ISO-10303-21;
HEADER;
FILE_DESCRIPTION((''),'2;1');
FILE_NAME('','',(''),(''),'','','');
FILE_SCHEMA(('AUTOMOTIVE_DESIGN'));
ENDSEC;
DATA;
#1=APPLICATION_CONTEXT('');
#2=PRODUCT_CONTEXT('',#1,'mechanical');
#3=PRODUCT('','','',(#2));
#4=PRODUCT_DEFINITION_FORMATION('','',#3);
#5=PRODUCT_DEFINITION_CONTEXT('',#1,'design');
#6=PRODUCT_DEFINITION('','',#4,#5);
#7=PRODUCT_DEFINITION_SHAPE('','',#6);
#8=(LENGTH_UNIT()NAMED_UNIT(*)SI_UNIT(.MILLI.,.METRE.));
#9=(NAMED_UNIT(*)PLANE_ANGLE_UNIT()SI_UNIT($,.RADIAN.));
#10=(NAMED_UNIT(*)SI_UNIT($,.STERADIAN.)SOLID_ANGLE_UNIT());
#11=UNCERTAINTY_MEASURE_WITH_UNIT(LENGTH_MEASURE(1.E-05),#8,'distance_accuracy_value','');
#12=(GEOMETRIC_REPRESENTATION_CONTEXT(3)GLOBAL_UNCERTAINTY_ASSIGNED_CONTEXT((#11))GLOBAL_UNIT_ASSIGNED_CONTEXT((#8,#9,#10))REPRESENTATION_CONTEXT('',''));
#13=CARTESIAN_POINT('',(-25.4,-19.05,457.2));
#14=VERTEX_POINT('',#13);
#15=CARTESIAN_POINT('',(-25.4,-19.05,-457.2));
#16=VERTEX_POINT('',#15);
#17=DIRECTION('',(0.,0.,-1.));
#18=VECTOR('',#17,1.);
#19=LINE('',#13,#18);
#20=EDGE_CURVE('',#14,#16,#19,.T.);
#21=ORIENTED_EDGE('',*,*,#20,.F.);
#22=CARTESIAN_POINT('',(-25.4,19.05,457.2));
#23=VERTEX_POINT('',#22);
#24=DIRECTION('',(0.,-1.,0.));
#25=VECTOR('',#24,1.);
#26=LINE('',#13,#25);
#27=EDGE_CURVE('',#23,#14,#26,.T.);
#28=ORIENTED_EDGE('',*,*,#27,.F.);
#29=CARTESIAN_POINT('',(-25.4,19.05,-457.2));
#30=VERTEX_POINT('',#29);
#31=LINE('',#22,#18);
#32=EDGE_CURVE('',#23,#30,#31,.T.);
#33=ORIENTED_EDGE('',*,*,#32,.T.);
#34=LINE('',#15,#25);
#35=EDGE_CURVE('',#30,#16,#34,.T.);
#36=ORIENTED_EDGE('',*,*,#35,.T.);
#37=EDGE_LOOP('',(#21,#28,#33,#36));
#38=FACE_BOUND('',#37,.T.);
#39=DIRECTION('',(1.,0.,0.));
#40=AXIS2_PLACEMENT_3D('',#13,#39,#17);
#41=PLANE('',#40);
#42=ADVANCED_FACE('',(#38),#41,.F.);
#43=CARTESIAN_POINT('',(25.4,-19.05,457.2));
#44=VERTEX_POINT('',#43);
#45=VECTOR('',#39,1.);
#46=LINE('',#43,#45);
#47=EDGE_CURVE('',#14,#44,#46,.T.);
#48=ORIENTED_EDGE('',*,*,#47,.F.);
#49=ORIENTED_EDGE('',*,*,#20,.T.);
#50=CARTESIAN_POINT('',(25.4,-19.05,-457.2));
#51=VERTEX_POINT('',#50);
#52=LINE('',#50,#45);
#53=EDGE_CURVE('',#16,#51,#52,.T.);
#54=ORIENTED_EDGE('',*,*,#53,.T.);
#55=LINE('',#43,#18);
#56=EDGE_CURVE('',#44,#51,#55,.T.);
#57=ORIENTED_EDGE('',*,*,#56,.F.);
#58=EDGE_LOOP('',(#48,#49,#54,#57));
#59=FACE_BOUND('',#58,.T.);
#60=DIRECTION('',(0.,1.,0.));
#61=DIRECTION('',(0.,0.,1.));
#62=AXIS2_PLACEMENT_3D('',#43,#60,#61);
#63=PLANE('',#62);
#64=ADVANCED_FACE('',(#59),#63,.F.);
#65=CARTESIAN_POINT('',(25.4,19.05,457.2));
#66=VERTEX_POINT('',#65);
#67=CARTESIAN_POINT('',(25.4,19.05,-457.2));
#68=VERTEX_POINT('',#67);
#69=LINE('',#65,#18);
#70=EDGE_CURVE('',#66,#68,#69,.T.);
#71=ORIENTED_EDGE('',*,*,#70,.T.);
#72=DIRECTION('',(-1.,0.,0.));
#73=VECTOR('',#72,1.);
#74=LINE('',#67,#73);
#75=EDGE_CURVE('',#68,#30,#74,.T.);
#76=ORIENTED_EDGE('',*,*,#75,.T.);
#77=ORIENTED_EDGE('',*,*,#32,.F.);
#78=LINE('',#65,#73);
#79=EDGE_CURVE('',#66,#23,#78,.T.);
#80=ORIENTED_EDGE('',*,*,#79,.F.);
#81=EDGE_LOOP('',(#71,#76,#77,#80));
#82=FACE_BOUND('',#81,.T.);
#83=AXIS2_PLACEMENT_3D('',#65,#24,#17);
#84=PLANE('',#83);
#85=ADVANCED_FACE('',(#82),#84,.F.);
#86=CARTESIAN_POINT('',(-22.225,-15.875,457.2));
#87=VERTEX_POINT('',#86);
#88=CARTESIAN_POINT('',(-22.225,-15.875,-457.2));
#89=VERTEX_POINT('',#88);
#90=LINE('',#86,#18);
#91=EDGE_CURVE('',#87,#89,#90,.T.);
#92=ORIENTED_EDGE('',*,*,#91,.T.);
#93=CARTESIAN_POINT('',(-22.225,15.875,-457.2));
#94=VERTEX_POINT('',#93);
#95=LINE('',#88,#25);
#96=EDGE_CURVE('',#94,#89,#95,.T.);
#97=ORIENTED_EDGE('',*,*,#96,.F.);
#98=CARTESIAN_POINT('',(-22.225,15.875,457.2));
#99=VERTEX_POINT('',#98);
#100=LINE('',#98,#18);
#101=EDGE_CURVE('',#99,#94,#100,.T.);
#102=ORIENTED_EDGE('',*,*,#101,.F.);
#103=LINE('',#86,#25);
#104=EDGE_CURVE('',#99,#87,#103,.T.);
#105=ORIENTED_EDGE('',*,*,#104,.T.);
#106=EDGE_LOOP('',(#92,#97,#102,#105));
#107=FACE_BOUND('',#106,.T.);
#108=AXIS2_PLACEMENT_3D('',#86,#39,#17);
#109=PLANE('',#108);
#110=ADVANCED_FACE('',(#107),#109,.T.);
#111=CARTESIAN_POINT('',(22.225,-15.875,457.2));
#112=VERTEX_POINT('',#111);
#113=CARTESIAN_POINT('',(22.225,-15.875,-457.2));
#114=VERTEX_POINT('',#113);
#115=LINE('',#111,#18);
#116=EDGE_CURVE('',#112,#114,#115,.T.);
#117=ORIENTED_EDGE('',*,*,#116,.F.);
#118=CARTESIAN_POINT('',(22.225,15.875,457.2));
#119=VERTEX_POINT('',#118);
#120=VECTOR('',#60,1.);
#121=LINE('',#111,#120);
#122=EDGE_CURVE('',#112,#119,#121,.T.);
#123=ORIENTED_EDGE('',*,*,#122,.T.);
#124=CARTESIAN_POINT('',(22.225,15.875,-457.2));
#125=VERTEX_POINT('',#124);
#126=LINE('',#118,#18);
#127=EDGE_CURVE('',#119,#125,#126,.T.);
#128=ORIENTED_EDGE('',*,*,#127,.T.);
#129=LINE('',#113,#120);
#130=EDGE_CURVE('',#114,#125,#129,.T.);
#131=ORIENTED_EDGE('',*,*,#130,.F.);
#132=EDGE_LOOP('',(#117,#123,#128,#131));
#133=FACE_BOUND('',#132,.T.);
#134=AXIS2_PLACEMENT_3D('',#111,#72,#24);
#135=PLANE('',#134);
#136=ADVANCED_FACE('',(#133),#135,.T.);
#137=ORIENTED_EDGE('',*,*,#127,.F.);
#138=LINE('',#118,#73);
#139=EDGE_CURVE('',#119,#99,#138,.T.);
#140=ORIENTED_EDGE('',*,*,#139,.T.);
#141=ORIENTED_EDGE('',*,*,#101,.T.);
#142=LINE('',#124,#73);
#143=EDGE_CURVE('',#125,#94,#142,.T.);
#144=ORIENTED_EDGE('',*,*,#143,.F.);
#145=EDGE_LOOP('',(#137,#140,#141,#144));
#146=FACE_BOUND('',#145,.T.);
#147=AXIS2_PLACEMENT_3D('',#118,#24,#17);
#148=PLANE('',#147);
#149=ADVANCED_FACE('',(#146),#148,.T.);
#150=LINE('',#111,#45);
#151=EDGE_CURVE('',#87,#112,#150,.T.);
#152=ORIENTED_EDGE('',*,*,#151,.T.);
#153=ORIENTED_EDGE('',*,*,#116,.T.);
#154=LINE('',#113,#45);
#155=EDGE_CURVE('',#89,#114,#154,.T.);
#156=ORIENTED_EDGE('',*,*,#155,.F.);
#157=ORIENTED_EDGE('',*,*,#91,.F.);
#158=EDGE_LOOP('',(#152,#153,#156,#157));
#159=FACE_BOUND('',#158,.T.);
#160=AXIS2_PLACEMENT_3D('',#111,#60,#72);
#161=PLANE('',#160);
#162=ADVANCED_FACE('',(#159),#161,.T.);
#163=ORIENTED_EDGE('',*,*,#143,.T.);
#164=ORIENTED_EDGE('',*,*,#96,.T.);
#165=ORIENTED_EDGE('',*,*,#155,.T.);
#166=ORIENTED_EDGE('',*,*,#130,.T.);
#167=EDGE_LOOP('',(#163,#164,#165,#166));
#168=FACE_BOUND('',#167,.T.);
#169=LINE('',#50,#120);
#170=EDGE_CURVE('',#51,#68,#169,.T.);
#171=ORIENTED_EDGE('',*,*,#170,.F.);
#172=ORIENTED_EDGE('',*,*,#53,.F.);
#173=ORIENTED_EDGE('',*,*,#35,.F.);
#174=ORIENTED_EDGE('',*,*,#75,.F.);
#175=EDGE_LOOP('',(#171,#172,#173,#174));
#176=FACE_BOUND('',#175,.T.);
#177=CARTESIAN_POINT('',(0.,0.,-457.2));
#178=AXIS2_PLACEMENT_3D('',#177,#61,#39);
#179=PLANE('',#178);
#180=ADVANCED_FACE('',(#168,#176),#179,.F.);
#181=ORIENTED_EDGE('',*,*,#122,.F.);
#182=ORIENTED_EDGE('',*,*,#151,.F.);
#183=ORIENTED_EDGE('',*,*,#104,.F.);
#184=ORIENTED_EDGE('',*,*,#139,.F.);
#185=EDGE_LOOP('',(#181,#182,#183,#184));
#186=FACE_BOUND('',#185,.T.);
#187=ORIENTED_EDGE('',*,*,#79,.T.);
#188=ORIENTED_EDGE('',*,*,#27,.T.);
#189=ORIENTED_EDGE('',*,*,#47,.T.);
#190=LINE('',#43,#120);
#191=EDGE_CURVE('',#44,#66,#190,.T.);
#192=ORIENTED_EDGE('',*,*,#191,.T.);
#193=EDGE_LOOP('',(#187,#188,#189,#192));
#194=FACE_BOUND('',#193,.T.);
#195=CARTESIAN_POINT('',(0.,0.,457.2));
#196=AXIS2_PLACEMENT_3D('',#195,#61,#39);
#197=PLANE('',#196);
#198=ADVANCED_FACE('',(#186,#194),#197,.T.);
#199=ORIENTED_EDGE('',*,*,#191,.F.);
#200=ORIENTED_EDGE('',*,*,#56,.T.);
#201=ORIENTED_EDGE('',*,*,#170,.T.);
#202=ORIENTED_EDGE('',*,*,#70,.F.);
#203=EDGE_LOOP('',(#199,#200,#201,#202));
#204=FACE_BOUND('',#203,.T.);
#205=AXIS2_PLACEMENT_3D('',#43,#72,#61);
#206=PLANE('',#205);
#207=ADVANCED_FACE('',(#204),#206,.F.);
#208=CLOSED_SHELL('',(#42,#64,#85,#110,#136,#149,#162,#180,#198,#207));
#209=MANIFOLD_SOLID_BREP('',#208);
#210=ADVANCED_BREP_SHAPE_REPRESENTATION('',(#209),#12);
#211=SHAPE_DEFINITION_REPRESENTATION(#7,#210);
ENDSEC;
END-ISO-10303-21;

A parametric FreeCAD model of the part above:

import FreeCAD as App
import Part
import Sketcher
from FreeCAD import Vector
Q = App.Units.Quantity


def add_polygon(sketch, points):
    """Adds a closed chain of lines whose ends are joined by coincident constraints."""
    first, n = sketch.GeometryCount, len(points)
    for a, b in zip(points, points[1:] + points[:1]):
        sketch.addGeometry(Part.LineSegment(App.Vector(*a, 0), App.Vector(*b, 0)), False)
    for i in range(n):
        sketch.addConstraint(Sketcher.Constraint("Coincident", first + i, 2, first + (i + 1) % n, 1))

doc = App.newDocument("Part")
body = doc.addObject("PartDesign::Body", "Body")

# Sketch on XY plane
sketch1 = doc.addObject("Sketcher::SketchObject", "Sketch")
body.addObject(sketch1)
sketch1.AttachmentSupport = (doc.XY_Plane, [""])
sketch1.MapMode = "FlatFace"
add_polygon(sketch1, [(-25, 19), (-25, -19), (25, -19), (25, 19)])  # lines 0-3
add_polygon(sketch1, [(22, -16), (-22, -16), (-22, 16), (22, 16)])  # lines 4-7
sketch1.addConstraint([
    Sketcher.Constraint("Vertical", 0),
    Sketcher.Constraint("Horizontal", 1),
    Sketcher.Constraint("Vertical", 2),
    Sketcher.Constraint("Horizontal", 3),
    Sketcher.Constraint("Horizontal", 4),
    Sketcher.Constraint("Vertical", 5),
    Sketcher.Constraint("Horizontal", 6),
    Sketcher.Constraint("Vertical", 7),
    Sketcher.Constraint("Symmetric", 0, 2, 2, 2, -1, 1),
    Sketcher.Constraint("Symmetric", 4, 2, 6, 2, -1, 1),
    Sketcher.Constraint("DistanceX", 1, 1, 1, 2, Q("2 in")),
    Sketcher.Constraint("DistanceY", 0, 2, 0, 1, Q("1.5 in")),
    Sketcher.Constraint("DistanceX", 4, 2, 4, 1, Q("1.75 in")),
    Sketcher.Constraint("DistanceY", 5, 1, 5, 2, Q("1.25 in")),
])
pad1 = doc.addObject("PartDesign::Pad", "Pad")
body.addObject(pad1)
pad1.Profile = sketch1
pad1.Type = "TwoLengths"
pad1.Length = Q("18 in")
pad1.Length2 = Q("18 in")

doc.recompute()
